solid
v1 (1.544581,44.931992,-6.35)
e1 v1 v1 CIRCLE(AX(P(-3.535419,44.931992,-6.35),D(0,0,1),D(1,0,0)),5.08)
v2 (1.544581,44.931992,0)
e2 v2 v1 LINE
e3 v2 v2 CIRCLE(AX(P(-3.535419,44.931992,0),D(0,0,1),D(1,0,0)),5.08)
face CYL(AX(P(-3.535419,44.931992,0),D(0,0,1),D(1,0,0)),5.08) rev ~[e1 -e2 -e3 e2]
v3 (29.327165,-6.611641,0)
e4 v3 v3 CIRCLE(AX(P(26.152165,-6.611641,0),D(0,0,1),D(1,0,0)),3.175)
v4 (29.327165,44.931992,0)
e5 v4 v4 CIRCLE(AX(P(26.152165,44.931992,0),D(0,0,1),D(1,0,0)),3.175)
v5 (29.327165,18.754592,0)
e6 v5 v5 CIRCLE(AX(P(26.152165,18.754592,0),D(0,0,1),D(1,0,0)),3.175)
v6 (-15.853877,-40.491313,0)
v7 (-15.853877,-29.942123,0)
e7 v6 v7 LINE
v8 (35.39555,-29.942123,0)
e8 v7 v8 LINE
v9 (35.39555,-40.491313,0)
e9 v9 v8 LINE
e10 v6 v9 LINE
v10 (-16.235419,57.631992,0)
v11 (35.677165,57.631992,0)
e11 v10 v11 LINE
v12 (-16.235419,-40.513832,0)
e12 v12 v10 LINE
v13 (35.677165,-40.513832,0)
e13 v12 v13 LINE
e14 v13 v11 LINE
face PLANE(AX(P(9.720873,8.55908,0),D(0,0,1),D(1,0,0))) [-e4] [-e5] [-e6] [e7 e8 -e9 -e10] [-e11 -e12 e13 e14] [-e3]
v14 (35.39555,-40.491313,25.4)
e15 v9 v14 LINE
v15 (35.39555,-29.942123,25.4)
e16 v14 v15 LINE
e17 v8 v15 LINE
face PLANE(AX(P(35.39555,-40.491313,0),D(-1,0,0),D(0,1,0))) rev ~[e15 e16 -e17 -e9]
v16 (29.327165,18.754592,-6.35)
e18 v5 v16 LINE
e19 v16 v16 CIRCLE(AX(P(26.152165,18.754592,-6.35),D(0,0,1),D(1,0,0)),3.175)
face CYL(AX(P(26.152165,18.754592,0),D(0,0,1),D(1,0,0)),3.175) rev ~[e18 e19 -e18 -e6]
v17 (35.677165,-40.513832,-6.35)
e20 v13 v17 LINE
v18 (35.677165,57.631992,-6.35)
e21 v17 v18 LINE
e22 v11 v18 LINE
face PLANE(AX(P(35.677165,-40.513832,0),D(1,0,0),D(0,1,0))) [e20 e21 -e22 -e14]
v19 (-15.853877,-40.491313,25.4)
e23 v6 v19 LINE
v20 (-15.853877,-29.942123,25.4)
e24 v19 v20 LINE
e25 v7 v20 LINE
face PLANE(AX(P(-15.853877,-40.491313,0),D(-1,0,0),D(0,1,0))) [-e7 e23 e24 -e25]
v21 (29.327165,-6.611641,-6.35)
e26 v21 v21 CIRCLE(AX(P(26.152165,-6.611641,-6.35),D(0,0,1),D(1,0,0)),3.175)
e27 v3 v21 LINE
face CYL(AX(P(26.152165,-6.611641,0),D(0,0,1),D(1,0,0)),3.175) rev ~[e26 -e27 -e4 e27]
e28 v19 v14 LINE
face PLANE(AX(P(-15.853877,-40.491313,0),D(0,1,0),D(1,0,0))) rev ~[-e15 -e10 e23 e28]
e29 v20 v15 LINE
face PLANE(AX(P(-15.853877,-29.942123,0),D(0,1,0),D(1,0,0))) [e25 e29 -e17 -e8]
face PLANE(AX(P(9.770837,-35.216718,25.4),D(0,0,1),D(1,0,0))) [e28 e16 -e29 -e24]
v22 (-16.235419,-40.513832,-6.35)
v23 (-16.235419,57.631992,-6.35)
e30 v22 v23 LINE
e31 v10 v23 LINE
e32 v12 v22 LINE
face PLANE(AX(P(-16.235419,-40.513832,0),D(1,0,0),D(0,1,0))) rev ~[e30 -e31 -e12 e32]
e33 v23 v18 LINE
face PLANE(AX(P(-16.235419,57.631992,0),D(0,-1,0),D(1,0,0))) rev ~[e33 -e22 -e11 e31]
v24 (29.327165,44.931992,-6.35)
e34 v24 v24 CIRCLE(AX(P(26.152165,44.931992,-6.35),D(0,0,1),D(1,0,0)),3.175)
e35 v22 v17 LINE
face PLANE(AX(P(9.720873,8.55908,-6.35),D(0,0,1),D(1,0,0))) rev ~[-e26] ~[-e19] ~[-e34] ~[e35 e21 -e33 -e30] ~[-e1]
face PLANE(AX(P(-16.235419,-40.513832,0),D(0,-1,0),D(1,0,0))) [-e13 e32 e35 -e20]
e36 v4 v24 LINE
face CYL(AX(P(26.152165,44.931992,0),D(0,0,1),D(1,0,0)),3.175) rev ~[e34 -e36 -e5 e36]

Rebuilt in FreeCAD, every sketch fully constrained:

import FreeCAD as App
import Part
import Sketcher
Q = App.Units.Quantity


def add_polygon(sketch, points):
    """Adds a closed chain of lines whose ends are joined by coincident constraints."""
    first, n = sketch.GeometryCount, len(points)
    for a, b in zip(points, points[1:] + points[:1]):
        sketch.addGeometry(Part.LineSegment(App.Vector(*a, 0), App.Vector(*b, 0)), False)
    for i in range(n):
        sketch.addConstraint(Sketcher.Constraint("Coincident", first + i, 2, first + (i + 1) % n, 1))

doc = App.newDocument("Part")
body = doc.addObject("PartDesign::Body", "Body")

# Sketch on XY plane
sketch1 = doc.addObject("Sketcher::SketchObject", "Sketch")
body.addObject(sketch1)
sketch1.AttachmentSupport = (doc.XY_Plane, [""])
sketch1.MapMode = "FlatFace"
add_polygon(sketch1, [(-16, -30), (-16, -40), (35, -40), (35, -30)])  # lines 0-3
sketch1.addConstraint(Sketcher.Constraint("Vertical", 0))
sketch1.addConstraint(Sketcher.Constraint("Horizontal", 1))
sketch1.addConstraint(Sketcher.Constraint("Vertical", 2))
sketch1.addConstraint(Sketcher.Constraint("Horizontal", 3))
sketch1.addConstraint(Sketcher.Constraint("DistanceY", 0, 2, 0, 1, 10.54919))
sketch1.addConstraint(Sketcher.Constraint("DistanceX", 1, 1, 1, 2, 51.249427))
sketch1.addConstraint(Sketcher.Constraint("DistanceX", -1, 1, 1, 2, 35.39555))
sketch1.addConstraint(Sketcher.Constraint("DistanceY", 0, 2, -1, 1, 40.491313))
pad1 = doc.addObject("PartDesign::Pad", "Pad")
body.addObject(pad1)
pad1.Profile = sketch1
pad1.Length = Q("1 in")

# Sketch on XY plane
sketch2 = doc.addObject("Sketcher::SketchObject", "Sketch001")
body.addObject(sketch2)
sketch2.AttachmentSupport = (doc.XY_Plane, [""])
sketch2.MapMode = "FlatFace"
add_polygon(sketch2, [(-16, 58), (-16, -41), (36, -41), (36, 58)])  # lines 0-3
sketch2.addConstraint(Sketcher.Constraint("Vertical", 0))
sketch2.addConstraint(Sketcher.Constraint("Horizontal", 1))
sketch2.addConstraint(Sketcher.Constraint("Vertical", 2))
sketch2.addConstraint(Sketcher.Constraint("Horizontal", 3))
sketch2.addConstraint(Sketcher.Constraint("DistanceX", 1, 1, 1, 2, 51.912584))
sketch2.addConstraint(Sketcher.Constraint("DistanceY", 0, 2, 0, 1, 98.145824))
sketch2.addConstraint(Sketcher.Constraint("DistanceX", 0, 2, -1, 1, 16.235419))
sketch2.addConstraint(Sketcher.Constraint("DistanceY", -1, 1, 2, 2, 57.631992))
pad2 = doc.addObject("PartDesign::Pad", "Pad001")
body.addObject(pad2)
pad2.Profile = sketch2
pad2.Length = Q("0.25 in")
pad2.Reversed = True

# Sketch on XY plane
sketch3 = doc.addObject("Sketcher::SketchObject", "Sketch002")
body.addObject(sketch3)
sketch3.AttachmentSupport = (doc.XY_Plane, [""])
sketch3.MapMode = "FlatFace"
sketch3.addGeometry(Part.Circle(App.Vector(-3.5, 44.9, 0), App.Vector(0, 0, 1), 5.1), False)
sketch3.addGeometry(Part.Circle(App.Vector(26.2, 44.9, 0), App.Vector(0, 0, 1), 3.2), False)
sketch3.addGeometry(Part.Circle(App.Vector(26.2, 18.8, 0), App.Vector(0, 0, 1), 3.2), False)
sketch3.addGeometry(Part.Circle(App.Vector(26.2, -6.6, 0), App.Vector(0, 0, 1), 3.2), False)
sketch3.addConstraint(Sketcher.Constraint("Equal", 1, 2))
sketch3.addConstraint(Sketcher.Constraint("Equal", 2, 3))
sketch3.addConstraint(Sketcher.Constraint("Horizontal", 0, 3, 1, 3))
sketch3.addConstraint(Sketcher.Constraint("Vertical", 1, 3, 2, 3))
sketch3.addConstraint(Sketcher.Constraint("Vertical", 2, 3, 3, 3))
sketch3.addConstraint(Sketcher.Constraint("Diameter", 0, Q("0.4 in")))
sketch3.addConstraint(Sketcher.Constraint("Diameter", 1, Q("0.25 in")))
sketch3.addConstraint(Sketcher.Constraint("DistanceY", 2, 3, 1, 3, 26.1774))
sketch3.addConstraint(Sketcher.Constraint("DistanceX", 0, 3, -1, 1, 3.535419))
sketch3.addConstraint(Sketcher.Constraint("DistanceY", -1, 1, 2, 3, 18.754592))
sketch3.addConstraint(Sketcher.Constraint("DistanceY", 3, 3, -1, 1, 6.611641))
sketch3.addConstraint(Sketcher.Constraint("DistanceX", -1, 1, 1, 3, 26.152165))
pocket1 = doc.addObject("PartDesign::Pocket", "Pocket")
body.addObject(pocket1)
pocket1.Profile = sketch3
pocket1.Length = Q("1.08 in")

doc.recompute()
